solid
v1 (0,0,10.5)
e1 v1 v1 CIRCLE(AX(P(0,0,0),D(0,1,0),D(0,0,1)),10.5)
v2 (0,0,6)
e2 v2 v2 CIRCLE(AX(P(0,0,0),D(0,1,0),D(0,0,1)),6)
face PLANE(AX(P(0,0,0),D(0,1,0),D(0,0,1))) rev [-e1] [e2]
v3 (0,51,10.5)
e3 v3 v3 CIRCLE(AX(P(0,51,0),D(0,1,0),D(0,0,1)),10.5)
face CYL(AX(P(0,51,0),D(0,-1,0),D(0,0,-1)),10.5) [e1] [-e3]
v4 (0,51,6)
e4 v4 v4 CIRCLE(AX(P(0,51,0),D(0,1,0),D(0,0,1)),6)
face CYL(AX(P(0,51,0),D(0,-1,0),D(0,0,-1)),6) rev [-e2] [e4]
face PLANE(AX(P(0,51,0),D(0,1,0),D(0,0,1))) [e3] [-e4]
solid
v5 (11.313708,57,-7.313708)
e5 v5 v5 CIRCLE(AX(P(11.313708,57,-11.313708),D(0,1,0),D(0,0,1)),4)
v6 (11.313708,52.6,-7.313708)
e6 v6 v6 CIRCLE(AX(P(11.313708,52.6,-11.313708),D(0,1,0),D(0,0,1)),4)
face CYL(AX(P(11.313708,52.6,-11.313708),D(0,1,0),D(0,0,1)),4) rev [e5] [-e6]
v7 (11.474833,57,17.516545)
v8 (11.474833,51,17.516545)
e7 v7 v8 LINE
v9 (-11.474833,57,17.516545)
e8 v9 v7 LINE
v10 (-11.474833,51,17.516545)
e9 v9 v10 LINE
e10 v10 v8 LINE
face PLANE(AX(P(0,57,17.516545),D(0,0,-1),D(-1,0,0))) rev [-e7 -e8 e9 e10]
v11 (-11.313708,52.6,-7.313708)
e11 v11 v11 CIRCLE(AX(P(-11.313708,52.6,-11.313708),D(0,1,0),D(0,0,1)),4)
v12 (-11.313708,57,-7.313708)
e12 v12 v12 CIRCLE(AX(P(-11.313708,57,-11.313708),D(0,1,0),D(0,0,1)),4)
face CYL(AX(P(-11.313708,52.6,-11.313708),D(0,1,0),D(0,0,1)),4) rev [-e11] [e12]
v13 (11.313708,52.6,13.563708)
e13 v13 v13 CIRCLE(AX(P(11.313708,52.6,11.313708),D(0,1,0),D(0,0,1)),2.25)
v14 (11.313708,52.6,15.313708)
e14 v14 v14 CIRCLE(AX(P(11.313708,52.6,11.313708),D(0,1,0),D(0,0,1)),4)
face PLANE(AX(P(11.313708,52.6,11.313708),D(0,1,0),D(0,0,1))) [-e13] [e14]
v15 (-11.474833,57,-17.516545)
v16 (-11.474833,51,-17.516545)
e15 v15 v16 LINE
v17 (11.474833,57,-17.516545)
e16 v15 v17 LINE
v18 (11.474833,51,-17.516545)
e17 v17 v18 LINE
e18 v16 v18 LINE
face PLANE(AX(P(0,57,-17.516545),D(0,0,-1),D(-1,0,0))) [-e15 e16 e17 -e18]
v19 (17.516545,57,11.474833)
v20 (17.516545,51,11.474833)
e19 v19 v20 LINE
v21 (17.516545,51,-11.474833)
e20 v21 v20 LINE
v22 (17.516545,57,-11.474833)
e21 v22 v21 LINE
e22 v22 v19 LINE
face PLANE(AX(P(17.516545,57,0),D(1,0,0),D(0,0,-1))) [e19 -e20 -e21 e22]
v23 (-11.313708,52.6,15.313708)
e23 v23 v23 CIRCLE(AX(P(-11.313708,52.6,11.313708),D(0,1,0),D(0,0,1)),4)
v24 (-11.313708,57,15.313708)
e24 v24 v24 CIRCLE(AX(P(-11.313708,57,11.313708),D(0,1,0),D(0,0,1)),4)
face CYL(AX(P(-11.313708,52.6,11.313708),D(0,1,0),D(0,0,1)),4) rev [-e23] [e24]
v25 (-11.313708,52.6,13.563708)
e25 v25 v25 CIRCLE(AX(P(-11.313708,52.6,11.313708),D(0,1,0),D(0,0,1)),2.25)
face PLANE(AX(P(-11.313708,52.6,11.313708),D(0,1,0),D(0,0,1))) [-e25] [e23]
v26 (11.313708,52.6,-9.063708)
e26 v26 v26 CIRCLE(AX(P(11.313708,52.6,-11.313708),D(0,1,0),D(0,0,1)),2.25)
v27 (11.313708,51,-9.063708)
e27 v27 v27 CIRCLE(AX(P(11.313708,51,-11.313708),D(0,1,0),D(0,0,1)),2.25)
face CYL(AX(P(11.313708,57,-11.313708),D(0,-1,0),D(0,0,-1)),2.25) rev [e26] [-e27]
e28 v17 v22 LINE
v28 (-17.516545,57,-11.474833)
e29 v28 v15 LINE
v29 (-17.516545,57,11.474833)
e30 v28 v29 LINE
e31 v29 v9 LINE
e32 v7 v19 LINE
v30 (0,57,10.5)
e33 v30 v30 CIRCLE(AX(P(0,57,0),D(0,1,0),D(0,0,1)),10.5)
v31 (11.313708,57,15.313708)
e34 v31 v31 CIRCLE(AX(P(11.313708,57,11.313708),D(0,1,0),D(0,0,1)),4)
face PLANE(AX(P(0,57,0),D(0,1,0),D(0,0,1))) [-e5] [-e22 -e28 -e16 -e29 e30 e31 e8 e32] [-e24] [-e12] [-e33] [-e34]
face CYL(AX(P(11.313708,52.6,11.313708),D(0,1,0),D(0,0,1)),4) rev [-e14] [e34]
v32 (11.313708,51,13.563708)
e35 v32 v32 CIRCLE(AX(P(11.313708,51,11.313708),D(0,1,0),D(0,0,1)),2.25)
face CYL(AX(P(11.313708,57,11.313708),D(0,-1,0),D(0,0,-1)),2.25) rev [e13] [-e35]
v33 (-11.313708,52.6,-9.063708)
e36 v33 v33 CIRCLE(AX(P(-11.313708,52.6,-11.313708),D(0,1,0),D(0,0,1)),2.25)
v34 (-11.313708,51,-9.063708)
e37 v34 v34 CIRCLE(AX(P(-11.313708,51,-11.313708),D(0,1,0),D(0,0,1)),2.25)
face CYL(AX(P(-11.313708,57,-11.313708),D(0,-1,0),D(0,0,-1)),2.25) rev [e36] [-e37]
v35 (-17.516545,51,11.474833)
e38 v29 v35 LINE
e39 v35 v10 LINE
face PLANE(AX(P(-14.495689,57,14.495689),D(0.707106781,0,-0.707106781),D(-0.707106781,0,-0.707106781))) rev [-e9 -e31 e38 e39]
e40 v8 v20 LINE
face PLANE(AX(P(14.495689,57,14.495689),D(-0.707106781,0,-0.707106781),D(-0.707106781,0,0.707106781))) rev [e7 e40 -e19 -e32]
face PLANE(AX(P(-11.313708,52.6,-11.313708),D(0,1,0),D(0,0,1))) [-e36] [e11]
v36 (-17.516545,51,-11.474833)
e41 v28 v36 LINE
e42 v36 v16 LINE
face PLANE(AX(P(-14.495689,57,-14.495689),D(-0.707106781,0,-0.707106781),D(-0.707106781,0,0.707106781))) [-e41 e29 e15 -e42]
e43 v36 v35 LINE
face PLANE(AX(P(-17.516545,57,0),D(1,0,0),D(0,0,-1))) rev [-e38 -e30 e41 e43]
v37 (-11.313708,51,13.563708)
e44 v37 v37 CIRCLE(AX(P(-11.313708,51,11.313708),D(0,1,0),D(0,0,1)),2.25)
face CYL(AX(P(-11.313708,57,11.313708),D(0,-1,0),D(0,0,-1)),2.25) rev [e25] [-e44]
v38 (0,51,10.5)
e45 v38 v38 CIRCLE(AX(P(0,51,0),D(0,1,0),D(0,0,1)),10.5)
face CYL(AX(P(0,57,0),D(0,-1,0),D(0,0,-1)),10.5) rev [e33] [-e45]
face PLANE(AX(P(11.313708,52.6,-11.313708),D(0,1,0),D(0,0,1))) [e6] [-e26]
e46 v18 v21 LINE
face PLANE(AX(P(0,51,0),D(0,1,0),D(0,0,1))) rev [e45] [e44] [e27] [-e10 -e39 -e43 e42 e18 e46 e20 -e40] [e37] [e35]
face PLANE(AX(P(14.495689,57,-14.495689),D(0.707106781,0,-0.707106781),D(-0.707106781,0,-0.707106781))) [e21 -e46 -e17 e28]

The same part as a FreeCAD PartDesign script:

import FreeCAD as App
import Part
import Sketcher

V = App.Vector
Q = App.Units.Quantity


def add_polygon(sketch, points):
    """Adds a closed chain of lines whose ends are joined by coincident constraints."""
    first, n = sketch.GeometryCount, len(points)
    for a, b in zip(points, points[1:] + points[:1]):
        sketch.addGeometry(Part.LineSegment(App.Vector(*a, 0), App.Vector(*b, 0)), False)
    for i in range(n):
        sketch.addConstraint(Sketcher.Constraint("Coincident", first + i, 2, first + (i + 1) % n, 1))

doc = App.newDocument("Part")
body = doc.addObject("PartDesign::Body", "Body")

sketch1 = doc.addObject("Sketcher::SketchObject", "Sketch")
body.addObject(sketch1)
sketch1.AttachmentSupport = (doc.XZ_Plane, [""])
sketch1.MapMode = "FlatFace"
sketch1.addGeometry(Part.Circle(V(0, 0, 0), V(0, 0, 1), 10), False)
sketch1.addGeometry(Part.Circle(V(0, 0, 0), V(0, 0, 1), 6), False)
sketch1.addConstraint(Sketcher.Constraint("Coincident", 0, 3, -1, 1))
sketch1.addConstraint(Sketcher.Constraint("Coincident", 1, 3, -1, 1))
sketch1.addConstraint(Sketcher.Constraint("Diameter", 0, Q("21 mm")))
sketch1.addConstraint(Sketcher.Constraint("Diameter", 1, Q("12 mm")))
pad1 = doc.addObject("PartDesign::Pad", "Pad")
body.addObject(pad1)
pad1.Profile = sketch1
pad1.Length = 51
pad1.Reversed = True
body2 = doc.addObject("PartDesign::Body", "Body001")

sketch2 = doc.addObject("Sketcher::SketchObject", "Sketch001")
body2.addObject(sketch2)
sketch2.AttachmentSupport = (doc.getObject("XZ_Plane001"), [""])
sketch2.MapMode = "FlatFace"
sketch2.AttachmentOffset = App.Placement(V(0, 0, -51), App.Rotation())
add_polygon(sketch2, [(-17.5, -11.5), (-17.5, 11.5), (-11.5, 17.5), (11.5, 17.5), (17.5, 11.5), (17.5, -11.5), (11.5, -17.5), (-11.5, -17.5)])
sketch2.addGeometry(Part.Circle(V(-11.3, 11.3, 0), V(0, 0, 1), 2.2), False)
sketch2.addGeometry(Part.Circle(V(0, 0, 0), V(0, 0, 1), 10.5), False)
sketch2.addGeometry(Part.Circle(V(11.3, 11.3, 0), V(0, 0, 1), 2.2), False)
sketch2.addGeometry(Part.Circle(V(-11.3, -11.3, 0), V(0, 0, 1), 2.2), False)
sketch2.addGeometry(Part.Circle(V(11.3, -11.3, 0), V(0, 0, 1), 2.2), False)
sketch2.addConstraint(Sketcher.Constraint("Vertical", 0))
sketch2.addConstraint(Sketcher.Constraint("Horizontal", 2))
sketch2.addConstraint(Sketcher.Constraint("Vertical", 4))
sketch2.addConstraint(Sketcher.Constraint("Horizontal", 6))
sketch2.addConstraint(Sketcher.Constraint("Coincident", 9, 3, -1, 1))
sketch2.addConstraint(Sketcher.Constraint("Equal", 8, 10))
sketch2.addConstraint(Sketcher.Constraint("Equal", 10, 11))
sketch2.addConstraint(Sketcher.Constraint("Equal", 11, 12))
sketch2.addConstraint(Sketcher.Constraint("Symmetric", 10, 3, 11, 3, -1, 1))
sketch2.addConstraint(Sketcher.Constraint("Symmetric", 8, 3, 12, 3, -1, 1))
sketch2.addConstraint(Sketcher.Constraint("Symmetric", 0, 2, 4, 2, -1, 1))
sketch2.addConstraint(Sketcher.Constraint("Symmetric", 1, 2, 5, 2, -1, 1))
sketch2.addConstraint(Sketcher.Constraint("Symmetric", 8, 3, 10, 3, -2))
sketch2.addConstraint(Sketcher.Constraint("Perpendicular", 1, 3))
sketch2.addConstraint(Sketcher.Constraint("Perpendicular", 5, 7))
sketch2.addConstraint(Sketcher.Constraint("Horizontal", 0, 2, 3, 2))
sketch2.addConstraint(Sketcher.Constraint("Horizontal", 4, 2, 7, 2))
sketch2.addConstraint(Sketcher.Constraint("Vertical", 2, 2, 5, 2))
sketch2.addConstraint(Sketcher.Constraint("Equal", 6, 0))
sketch2.addConstraint(Sketcher.Constraint("Diameter", 9, Q("21 mm")))
sketch2.addConstraint(Sketcher.Constraint("Diameter", 8, Q("4.5 mm")))
sketch2.addConstraint(Sketcher.Constraint("Distance", 1, Q("8.544272 mm")))
sketch2.addConstraint(Sketcher.Constraint("DistanceX", 2, 1, 2, 2, Q("22.949666 mm")))
sketch2.addConstraint(Sketcher.Constraint("DistanceX", 8, 3, -1, 1, Q("11.313708 mm")))
sketch2.addConstraint(Sketcher.Constraint("DistanceY", -1, 1, 8, 3, Q("11.313708 mm")))
pad2 = doc.addObject("PartDesign::Pad", "Pad001")
body2.addObject(pad2)
pad2.Profile = sketch2
pad2.Length = 6
pad2.Reversed = True

sketch3 = doc.addObject("Sketcher::SketchObject", "Sketch002")
body2.addObject(sketch3)
sketch3.AttachmentSupport = (doc.getObject("XZ_Plane001"), [""])
sketch3.MapMode = "FlatFace"
sketch3.AttachmentOffset = App.Placement(V(0, 0, -57), App.Rotation())
sketch3.addGeometry(Part.Circle(V(-11.3, -11.3, 0), V(0, 0, 1), 4), False)
sketch3.addGeometry(Part.Circle(V(-11.3, 11.3, 0), V(0, 0, 1), 4), False)
sketch3.addGeometry(Part.Circle(V(11.3, 11.3, 0), V(0, 0, 1), 4), False)
sketch3.addGeometry(Part.Circle(V(11.3, -11.3, 0), V(0, 0, 1), 4), False)
sketch3.addConstraint(Sketcher.Constraint("Equal", 0, 1))
sketch3.addConstraint(Sketcher.Constraint("Equal", 1, 2))
sketch3.addConstraint(Sketcher.Constraint("Equal", 2, 3))
sketch3.addConstraint(Sketcher.Constraint("Symmetric", 0, 3, 2, 3, -1, 1))
sketch3.addConstraint(Sketcher.Constraint("Symmetric", 1, 3, 3, 3, -1, 1))
sketch3.addConstraint(Sketcher.Constraint("Symmetric", 1, 3, 2, 3, -2))
sketch3.addConstraint(Sketcher.Constraint("Diameter", 0, Q("8 mm")))
sketch3.addConstraint(Sketcher.Constraint("DistanceX", 0, 3, -1, 1, Q("11.313708 mm")))
sketch3.addConstraint(Sketcher.Constraint("DistanceY", 0, 3, -1, 1, Q("11.313708 mm")))
pocket1 = doc.addObject("PartDesign::Pocket", "Pocket")
body2.addObject(pocket1)
pocket1.Profile = sketch3
pocket1.Length = 4.4
pocket1.Reversed = True

doc.recompute()
